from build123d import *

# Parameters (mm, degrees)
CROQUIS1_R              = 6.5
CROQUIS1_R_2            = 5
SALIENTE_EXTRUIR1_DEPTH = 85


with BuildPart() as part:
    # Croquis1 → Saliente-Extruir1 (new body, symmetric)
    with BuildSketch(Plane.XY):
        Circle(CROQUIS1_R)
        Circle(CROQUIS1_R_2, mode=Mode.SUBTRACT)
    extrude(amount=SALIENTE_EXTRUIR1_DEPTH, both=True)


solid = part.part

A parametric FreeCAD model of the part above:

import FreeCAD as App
import Part
import Sketcher

V = App.Vector
Q = App.Units.Quantity

doc = App.newDocument("Part")
body = doc.addObject("PartDesign::Body", "Body")

# Sketch on XY plane
sketch1 = body.newObject("Sketcher::SketchObject", "Sketch")
sketch1.AttachmentSupport = (doc.getObject("XY_Plane"), [""])
sketch1.MapMode = "FlatFace"
sketch1.addGeometry([
    Part.Circle(V(0, 0, 0), V(0, 0, 1), 6),
    Part.Circle(V(0, 0, 0), V(0, 0, 1), 5),
], False)
sketch1.addConstraint([
    Sketcher.Constraint("Coincident", 0, 3, -1, 1),
    Sketcher.Constraint("Coincident", 1, 3, -1, 1),
    Sketcher.Constraint("Diameter", 0, Q("13 mm")),
    Sketcher.Constraint("Diameter", 1, Q("10 mm")),
])
pad1 = body.newObject("PartDesign::Pad", "Pad")
pad1.Profile = sketch1
pad1.Length = 170
pad1.Midplane = True

doc.recompute()
